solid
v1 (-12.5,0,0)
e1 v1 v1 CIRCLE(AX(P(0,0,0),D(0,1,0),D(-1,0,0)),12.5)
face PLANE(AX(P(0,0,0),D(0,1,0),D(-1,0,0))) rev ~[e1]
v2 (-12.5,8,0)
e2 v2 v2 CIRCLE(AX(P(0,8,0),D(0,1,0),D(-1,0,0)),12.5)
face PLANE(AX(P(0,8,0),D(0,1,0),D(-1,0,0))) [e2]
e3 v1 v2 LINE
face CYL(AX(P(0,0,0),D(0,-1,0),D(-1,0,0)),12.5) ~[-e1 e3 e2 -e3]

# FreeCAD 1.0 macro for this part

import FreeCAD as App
import Part
import Sketcher

doc = App.newDocument("Part")
body = doc.addObject("PartDesign::Body", "Body")

# Sketch on XZ plane
sketch1 = body.newObject("Sketcher::SketchObject", "Sketch")
sketch1.AttachmentSupport = (doc.getObject("XZ_Plane"), [""])
sketch1.MapMode = "FlatFace"
sketch1.addGeometry(Part.Circle(App.Vector(0, 0, 0), App.Vector(0, 0, 1), 12.5), False)
sketch1.addConstraint([
    Sketcher.Constraint("Coincident", 0, 3, -1, 1),
    Sketcher.Constraint("Diameter", 0, 25.0),
])
pad1 = body.newObject("PartDesign::Pad", "Pad")
pad1.Profile = sketch1
pad1.Length = 8
pad1.Reversed = True

doc.recompute()
